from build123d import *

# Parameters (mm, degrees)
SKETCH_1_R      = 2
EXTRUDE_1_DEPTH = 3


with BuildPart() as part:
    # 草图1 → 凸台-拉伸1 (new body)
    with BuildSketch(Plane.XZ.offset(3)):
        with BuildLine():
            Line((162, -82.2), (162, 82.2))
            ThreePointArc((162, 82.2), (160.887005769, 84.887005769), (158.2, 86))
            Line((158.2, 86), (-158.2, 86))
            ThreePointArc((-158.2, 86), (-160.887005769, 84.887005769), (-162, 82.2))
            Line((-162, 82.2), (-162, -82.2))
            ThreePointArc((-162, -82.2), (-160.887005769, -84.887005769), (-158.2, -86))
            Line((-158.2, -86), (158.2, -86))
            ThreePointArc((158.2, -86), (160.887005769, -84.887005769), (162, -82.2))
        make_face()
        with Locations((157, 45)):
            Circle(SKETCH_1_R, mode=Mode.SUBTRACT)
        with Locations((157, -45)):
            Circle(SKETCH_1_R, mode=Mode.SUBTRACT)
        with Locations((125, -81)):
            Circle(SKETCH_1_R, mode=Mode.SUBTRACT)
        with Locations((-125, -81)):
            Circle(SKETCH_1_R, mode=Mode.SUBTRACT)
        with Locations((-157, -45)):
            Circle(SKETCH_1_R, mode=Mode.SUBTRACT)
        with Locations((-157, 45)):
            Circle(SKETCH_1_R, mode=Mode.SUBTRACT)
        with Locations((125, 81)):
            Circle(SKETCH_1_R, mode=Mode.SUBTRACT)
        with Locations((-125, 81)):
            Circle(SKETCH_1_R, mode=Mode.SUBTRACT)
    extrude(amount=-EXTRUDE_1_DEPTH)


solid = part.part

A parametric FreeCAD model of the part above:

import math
import FreeCAD as App
import Part
import Sketcher

V = App.Vector
Q = App.Units.Quantity

doc = App.newDocument("Part")
body = doc.addObject("PartDesign::Body", "Body")

sketch1 = doc.addObject("Sketcher::SketchObject", "Sketch")
body.addObject(sketch1)
sketch1.AttachmentSupport = (doc.XZ_Plane, [""])
sketch1.MapMode = "FlatFace"
sketch1.AttachmentOffset = App.Placement(V(0, 0, 3), App.Rotation())
sketch1.addGeometry(Part.LineSegment(V(162, -82.2, 0), V(162, 82.2, 0)), False)
sketch1.addGeometry(Part.ArcOfCircle(Part.Circle(V(158.2, 82.2, 0), V(0, 0, 1), 3.8), math.radians(0), math.radians(90)), False)
sketch1.addGeometry(Part.LineSegment(V(158.2, 86, 0), V(-158.2, 86, 0)), False)
sketch1.addGeometry(Part.ArcOfCircle(Part.Circle(V(-158.2, 82.2, 0), V(0, 0, 1), 3.8), math.radians(90), math.radians(180)), False)
sketch1.addGeometry(Part.LineSegment(V(-162, 82.2, 0), V(-162, -82.2, 0)), False)
sketch1.addGeometry(Part.ArcOfCircle(Part.Circle(V(-158.2, -82.2, 0), V(0, 0, 1), 3.8), math.radians(180), math.radians(270)), False)
sketch1.addGeometry(Part.LineSegment(V(-158.2, -86, 0), V(158.2, -86, 0)), False)
sketch1.addGeometry(Part.ArcOfCircle(Part.Circle(V(158.2, -82.2, 0), V(0, 0, 1), 3.8), math.radians(-90), math.radians(0)), False)
sketch1.addGeometry(Part.Circle(V(-125, -81, 0), V(0, 0, 1), 2), False)
sketch1.addGeometry(Part.Circle(V(-157, -45, 0), V(0, 0, 1), 2), False)
sketch1.addGeometry(Part.Circle(V(125, -81, 0), V(0, 0, 1), 2), False)
sketch1.addGeometry(Part.Circle(V(157, -45, 0), V(0, 0, 1), 2), False)
sketch1.addGeometry(Part.Circle(V(-157, 45, 0), V(0, 0, 1), 2), False)
sketch1.addGeometry(Part.Circle(V(-125, 81, 0), V(0, 0, 1), 2), False)
sketch1.addGeometry(Part.Circle(V(157, 45, 0), V(0, 0, 1), 2), False)
sketch1.addGeometry(Part.Circle(V(125, 81, 0), V(0, 0, 1), 2), False)
sketch1.addConstraint(Sketcher.Constraint("Tangent", 0, 2, 1, 1))
sketch1.addConstraint(Sketcher.Constraint("Tangent", 1, 2, 2, 1))
sketch1.addConstraint(Sketcher.Constraint("Tangent", 2, 2, 3, 1))
sketch1.addConstraint(Sketcher.Constraint("Tangent", 3, 2, 4, 1))
sketch1.addConstraint(Sketcher.Constraint("Tangent", 4, 2, 5, 1))
sketch1.addConstraint(Sketcher.Constraint("Tangent", 5, 2, 6, 1))
sketch1.addConstraint(Sketcher.Constraint("Tangent", 6, 2, 7, 1))
sketch1.addConstraint(Sketcher.Constraint("Tangent", 7, 2, 0, 1))
sketch1.addConstraint(Sketcher.Constraint("Vertical", 0))
sketch1.addConstraint(Sketcher.Constraint("Horizontal", 2))
sketch1.addConstraint(Sketcher.Constraint("Vertical", 4))
sketch1.addConstraint(Sketcher.Constraint("Horizontal", 6))
sketch1.addConstraint(Sketcher.Constraint("Equal", 1, 3))
sketch1.addConstraint(Sketcher.Constraint("Equal", 3, 5))
sketch1.addConstraint(Sketcher.Constraint("Equal", 5, 7))
sketch1.addConstraint(Sketcher.Constraint("Equal", 8, 9))
sketch1.addConstraint(Sketcher.Constraint("Equal", 9, 10))
sketch1.addConstraint(Sketcher.Constraint("Equal", 10, 11))
sketch1.addConstraint(Sketcher.Constraint("Equal", 11, 12))
sketch1.addConstraint(Sketcher.Constraint("Equal", 12, 13))
sketch1.addConstraint(Sketcher.Constraint("Equal", 13, 14))
sketch1.addConstraint(Sketcher.Constraint("Equal", 14, 15))
sketch1.addConstraint(Sketcher.Constraint("Symmetric", 1, 3, 5, 3, -1, 1))
sketch1.addConstraint(Sketcher.Constraint("Symmetric", 11, 3, 12, 3, -1, 1))
sketch1.addConstraint(Sketcher.Constraint("Symmetric", 10, 3, 13, 3, -1, 1))
sketch1.addConstraint(Sketcher.Constraint("Symmetric", 9, 3, 14, 3, -1, 1))
sketch1.addConstraint(Sketcher.Constraint("Symmetric", 8, 3, 15, 3, -1, 1))
sketch1.addConstraint(Sketcher.Constraint("Symmetric", 8, 3, 10, 3, -2))
sketch1.addConstraint(Sketcher.Constraint("Symmetric", 9, 3, 11, 3, -2))
sketch1.addConstraint(Sketcher.Constraint("Diameter", 8, Q("4 mm")))
sketch1.addConstraint(Sketcher.Constraint("Radius", 1, Q("3.8 mm")))
sketch1.addConstraint(Sketcher.Constraint("DistanceX", 2, 2, 2, 1, Q("316.4 mm")))
sketch1.addConstraint(Sketcher.Constraint("DistanceY", 0, 1, 0, 2, Q("164.4 mm")))
sketch1.addConstraint(Sketcher.Constraint("DistanceX", 8, 3, -1, 1, Q("125 mm")))
sketch1.addConstraint(Sketcher.Constraint("DistanceY", 8, 3, -1, 1, Q("81 mm")))
sketch1.addConstraint(Sketcher.Constraint("DistanceX", 9, 3, -1, 1, Q("157 mm")))
sketch1.addConstraint(Sketcher.Constraint("DistanceY", 9, 3, -1, 1, Q("45 mm")))
pad1 = doc.addObject("PartDesign::Pad", "Pad")
body.addObject(pad1)
pad1.Profile = sketch1
pad1.Length = 3
pad1.Reversed = True

doc.recompute()
